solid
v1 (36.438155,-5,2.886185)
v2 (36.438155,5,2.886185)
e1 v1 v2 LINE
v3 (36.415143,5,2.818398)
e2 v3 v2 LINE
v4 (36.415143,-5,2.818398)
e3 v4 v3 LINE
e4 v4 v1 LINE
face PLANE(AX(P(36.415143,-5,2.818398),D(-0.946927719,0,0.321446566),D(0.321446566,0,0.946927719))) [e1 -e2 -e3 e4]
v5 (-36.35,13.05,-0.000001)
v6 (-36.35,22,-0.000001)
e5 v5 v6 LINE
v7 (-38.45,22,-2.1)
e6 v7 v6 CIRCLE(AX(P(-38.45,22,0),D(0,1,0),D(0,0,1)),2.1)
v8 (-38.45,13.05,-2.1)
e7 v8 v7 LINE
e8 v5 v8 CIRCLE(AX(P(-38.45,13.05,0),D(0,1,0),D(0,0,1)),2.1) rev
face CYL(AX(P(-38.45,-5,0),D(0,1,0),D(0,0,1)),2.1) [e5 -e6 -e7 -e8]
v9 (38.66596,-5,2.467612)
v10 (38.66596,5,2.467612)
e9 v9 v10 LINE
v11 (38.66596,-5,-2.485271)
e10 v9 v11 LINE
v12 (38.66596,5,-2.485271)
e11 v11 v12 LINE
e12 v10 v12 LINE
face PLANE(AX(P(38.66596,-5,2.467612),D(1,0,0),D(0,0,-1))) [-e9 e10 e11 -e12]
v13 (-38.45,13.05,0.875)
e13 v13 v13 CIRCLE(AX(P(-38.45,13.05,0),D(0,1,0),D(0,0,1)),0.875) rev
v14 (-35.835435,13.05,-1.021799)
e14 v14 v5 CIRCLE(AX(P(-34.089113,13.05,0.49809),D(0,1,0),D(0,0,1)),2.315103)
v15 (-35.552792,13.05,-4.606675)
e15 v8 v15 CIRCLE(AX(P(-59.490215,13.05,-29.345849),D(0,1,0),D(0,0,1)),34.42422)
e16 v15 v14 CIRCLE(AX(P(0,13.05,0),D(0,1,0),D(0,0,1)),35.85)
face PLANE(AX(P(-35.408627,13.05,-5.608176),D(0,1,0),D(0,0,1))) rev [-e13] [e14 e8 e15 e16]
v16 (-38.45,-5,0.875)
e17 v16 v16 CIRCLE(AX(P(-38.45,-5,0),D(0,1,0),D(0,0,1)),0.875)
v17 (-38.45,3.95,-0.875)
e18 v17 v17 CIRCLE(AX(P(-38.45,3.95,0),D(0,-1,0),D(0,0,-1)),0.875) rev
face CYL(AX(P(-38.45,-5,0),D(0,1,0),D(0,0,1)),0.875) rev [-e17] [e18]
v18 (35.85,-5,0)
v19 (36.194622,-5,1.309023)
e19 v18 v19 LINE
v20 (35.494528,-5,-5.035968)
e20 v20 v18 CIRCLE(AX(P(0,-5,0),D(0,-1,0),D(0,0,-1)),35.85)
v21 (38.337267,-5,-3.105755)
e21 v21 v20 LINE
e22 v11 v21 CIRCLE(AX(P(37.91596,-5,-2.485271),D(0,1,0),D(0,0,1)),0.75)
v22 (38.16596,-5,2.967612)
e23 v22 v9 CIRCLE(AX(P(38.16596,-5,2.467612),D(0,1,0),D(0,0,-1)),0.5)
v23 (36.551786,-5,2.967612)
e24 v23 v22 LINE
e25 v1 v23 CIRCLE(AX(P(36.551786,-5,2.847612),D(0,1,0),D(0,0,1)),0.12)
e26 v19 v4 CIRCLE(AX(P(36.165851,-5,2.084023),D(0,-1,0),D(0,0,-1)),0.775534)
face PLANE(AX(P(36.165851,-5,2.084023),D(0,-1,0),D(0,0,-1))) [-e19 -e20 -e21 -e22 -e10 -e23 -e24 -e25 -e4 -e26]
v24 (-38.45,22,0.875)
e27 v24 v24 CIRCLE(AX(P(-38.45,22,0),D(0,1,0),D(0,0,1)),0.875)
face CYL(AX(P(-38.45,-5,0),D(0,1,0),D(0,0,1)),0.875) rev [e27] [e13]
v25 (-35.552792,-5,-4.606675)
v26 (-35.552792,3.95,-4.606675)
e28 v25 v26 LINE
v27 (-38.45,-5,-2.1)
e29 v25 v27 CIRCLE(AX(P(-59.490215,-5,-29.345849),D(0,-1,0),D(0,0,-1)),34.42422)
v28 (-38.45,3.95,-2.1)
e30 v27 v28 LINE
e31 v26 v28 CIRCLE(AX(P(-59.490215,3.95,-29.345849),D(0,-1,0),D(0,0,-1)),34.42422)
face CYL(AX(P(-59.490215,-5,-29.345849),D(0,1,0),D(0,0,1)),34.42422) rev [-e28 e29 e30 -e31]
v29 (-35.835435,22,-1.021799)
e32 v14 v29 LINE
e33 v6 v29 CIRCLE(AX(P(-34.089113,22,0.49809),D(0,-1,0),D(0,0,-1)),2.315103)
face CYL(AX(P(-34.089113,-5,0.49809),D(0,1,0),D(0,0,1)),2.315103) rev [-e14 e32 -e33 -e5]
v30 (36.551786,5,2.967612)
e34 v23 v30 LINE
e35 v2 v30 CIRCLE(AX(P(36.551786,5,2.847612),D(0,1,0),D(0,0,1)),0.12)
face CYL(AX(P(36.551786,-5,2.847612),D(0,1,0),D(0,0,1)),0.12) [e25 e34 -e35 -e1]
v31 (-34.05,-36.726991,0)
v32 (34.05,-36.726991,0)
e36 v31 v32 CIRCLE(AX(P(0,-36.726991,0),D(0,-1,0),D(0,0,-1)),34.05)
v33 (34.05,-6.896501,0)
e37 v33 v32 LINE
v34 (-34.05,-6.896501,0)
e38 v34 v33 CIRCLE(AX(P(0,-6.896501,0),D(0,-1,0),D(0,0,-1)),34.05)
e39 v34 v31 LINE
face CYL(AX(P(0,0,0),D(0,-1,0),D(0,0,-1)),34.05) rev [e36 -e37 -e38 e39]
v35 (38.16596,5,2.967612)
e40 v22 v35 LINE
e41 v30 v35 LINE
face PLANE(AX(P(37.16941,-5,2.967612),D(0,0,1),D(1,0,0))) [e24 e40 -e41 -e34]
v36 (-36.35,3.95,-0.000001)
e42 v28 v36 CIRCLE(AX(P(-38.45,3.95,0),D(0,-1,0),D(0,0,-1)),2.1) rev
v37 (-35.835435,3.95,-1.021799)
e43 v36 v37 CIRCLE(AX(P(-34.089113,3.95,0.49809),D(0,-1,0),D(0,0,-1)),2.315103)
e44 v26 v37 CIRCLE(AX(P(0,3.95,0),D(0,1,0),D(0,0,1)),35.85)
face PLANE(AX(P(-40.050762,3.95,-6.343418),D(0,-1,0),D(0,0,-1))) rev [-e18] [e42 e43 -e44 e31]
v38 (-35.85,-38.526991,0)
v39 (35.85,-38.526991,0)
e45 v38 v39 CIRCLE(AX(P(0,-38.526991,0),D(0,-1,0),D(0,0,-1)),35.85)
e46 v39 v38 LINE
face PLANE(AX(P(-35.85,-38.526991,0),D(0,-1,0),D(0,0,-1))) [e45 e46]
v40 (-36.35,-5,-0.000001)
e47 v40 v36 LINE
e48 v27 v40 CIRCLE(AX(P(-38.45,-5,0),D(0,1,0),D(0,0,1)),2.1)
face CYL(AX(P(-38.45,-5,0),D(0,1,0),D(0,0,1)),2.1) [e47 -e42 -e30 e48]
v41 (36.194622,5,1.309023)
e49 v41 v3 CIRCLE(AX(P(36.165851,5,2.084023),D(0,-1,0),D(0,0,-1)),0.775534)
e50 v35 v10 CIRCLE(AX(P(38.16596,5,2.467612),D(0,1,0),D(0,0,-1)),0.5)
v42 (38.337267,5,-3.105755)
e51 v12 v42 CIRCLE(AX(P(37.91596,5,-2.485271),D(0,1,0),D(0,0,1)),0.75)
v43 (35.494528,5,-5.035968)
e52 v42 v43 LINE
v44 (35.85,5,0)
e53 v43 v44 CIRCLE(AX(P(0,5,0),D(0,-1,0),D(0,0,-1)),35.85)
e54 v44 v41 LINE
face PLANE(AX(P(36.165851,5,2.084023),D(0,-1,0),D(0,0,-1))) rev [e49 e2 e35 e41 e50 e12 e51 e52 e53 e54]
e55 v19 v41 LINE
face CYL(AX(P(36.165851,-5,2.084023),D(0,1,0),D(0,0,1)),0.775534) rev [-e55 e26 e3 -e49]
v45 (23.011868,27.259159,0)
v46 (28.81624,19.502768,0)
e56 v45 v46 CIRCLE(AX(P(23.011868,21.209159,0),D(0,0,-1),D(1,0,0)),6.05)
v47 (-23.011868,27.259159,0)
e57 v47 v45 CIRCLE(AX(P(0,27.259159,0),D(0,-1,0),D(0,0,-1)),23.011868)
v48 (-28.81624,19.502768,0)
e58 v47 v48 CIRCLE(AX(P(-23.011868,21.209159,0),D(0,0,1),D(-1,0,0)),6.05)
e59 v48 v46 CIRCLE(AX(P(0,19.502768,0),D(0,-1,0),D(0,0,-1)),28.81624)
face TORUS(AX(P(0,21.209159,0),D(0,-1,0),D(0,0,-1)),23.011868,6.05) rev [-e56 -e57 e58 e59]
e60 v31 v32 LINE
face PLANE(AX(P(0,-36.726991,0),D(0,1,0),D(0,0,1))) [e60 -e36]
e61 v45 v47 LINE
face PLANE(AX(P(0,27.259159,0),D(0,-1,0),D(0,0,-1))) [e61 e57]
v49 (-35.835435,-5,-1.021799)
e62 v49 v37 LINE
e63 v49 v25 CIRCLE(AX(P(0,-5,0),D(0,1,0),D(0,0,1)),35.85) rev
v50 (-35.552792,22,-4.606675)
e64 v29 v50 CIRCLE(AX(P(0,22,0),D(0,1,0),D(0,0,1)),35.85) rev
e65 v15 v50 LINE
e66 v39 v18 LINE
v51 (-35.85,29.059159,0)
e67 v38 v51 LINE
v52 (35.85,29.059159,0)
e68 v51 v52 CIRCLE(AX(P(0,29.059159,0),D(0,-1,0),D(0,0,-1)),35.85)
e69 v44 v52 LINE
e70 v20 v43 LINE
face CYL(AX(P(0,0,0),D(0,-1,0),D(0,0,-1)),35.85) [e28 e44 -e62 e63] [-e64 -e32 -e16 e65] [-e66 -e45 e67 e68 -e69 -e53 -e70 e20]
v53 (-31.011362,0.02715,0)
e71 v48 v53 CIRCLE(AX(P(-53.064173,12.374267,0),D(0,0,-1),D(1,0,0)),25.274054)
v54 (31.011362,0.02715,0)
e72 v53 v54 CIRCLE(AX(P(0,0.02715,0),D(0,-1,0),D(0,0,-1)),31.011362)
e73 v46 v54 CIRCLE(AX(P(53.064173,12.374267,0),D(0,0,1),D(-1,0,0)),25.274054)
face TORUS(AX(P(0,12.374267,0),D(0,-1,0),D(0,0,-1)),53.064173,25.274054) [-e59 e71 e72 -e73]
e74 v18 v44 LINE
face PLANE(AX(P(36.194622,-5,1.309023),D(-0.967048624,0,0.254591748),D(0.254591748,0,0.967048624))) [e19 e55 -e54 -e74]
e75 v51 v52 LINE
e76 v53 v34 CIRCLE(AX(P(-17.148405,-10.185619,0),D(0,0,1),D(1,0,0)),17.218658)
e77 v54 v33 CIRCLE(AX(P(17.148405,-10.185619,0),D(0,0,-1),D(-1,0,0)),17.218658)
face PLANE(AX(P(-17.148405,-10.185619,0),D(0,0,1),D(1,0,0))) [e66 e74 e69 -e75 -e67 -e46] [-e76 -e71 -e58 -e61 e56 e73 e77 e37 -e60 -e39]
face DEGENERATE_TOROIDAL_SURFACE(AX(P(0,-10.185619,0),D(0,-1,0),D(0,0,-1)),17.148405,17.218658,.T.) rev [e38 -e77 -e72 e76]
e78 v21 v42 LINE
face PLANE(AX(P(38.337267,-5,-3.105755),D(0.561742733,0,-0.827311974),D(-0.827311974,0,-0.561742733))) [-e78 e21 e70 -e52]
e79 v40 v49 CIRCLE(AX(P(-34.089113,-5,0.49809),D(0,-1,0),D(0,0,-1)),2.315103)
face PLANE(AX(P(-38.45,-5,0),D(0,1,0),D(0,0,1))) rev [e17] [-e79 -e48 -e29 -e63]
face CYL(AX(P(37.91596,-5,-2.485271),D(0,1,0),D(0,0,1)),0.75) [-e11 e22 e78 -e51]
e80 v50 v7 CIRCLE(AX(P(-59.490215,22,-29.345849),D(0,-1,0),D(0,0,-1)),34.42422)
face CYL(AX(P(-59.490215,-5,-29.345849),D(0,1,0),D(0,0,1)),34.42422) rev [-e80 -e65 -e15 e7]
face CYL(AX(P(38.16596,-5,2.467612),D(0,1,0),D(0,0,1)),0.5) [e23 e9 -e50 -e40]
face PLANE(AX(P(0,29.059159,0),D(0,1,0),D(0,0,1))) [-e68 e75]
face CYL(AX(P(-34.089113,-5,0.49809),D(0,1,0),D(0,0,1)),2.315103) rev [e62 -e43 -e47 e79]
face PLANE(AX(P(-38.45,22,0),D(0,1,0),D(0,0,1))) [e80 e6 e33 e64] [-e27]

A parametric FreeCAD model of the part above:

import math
import FreeCAD as App
import Part
import Sketcher

doc = App.newDocument("Part")
body = doc.addObject("PartDesign::Body", "Body")

# Sketch on XY plane
sketch1 = doc.addObject("Sketcher::SketchObject", "Sketch")
body.addObject(sketch1)
sketch1.AttachmentSupport = (doc.XY_Plane, [""])
sketch1.MapMode = "FlatFace"
sketch1.addGeometry(Part.LineSegment(App.Vector(0, 27.3, 0), App.Vector(23, 27.3, 0)), False)
sketch1.addGeometry(Part.ArcOfCircle(Part.Circle(App.Vector(23, 21.2, 0), App.Vector(0, 0, 1), 6.1), math.radians(-16), math.radians(90)), False)
sketch1.addGeometry(Part.ArcOfCircle(Part.Circle(App.Vector(53.1, 12.4, 0), App.Vector(0, 0, 1), 25.3), math.radians(164), math.radians(209)), False)
sketch1.addGeometry(Part.ArcOfCircle(Part.Circle(App.Vector(17.1, -10.2, 0), App.Vector(0, 0, 1), 17.2), math.radians(11), math.radians(36)), False)
sketch1.addGeometry(Part.LineSegment(App.Vector(34, -6.9, 0), App.Vector(34, -36.7, 0)), False)
sketch1.addGeometry(Part.LineSegment(App.Vector(34, -36.7, 0), App.Vector(0, -36.7, 0)), False)
sketch1.addGeometry(Part.LineSegment(App.Vector(0, -36.7, 0), App.Vector(0, -38.5, 0)), False)
sketch1.addGeometry(Part.LineSegment(App.Vector(0, -38.5, 0), App.Vector(35.9, -38.5, 0)), False)
sketch1.addGeometry(Part.LineSegment(App.Vector(35.9, -38.5, 0), App.Vector(35.9, 29.1, 0)), False)
sketch1.addGeometry(Part.LineSegment(App.Vector(35.9, 29.1, 0), App.Vector(0, 29.1, 0)), False)
sketch1.addGeometry(Part.LineSegment(App.Vector(0, 29.1, 0), App.Vector(0, 27.3, 0)), False)
sketch1.addConstraint(Sketcher.Constraint("Tangent", 0, 2, 1, 2))
sketch1.addConstraint(Sketcher.Constraint("Tangent", 1, 1, 2, 1))
sketch1.addConstraint(Sketcher.Constraint("Coincident", 2, 2, 3, 2))
sketch1.addConstraint(Sketcher.Constraint("Coincident", 3, 1, 4, 1))
sketch1.addConstraint(Sketcher.Constraint("Coincident", 4, 2, 5, 1))
sketch1.addConstraint(Sketcher.Constraint("Coincident", 5, 2, 6, 1))
sketch1.addConstraint(Sketcher.Constraint("Coincident", 6, 2, 7, 1))
sketch1.addConstraint(Sketcher.Constraint("Coincident", 7, 2, 8, 1))
sketch1.addConstraint(Sketcher.Constraint("Coincident", 8, 2, 9, 1))
sketch1.addConstraint(Sketcher.Constraint("Coincident", 9, 2, 10, 1))
sketch1.addConstraint(Sketcher.Constraint("Coincident", 10, 2, 0, 1))
sketch1.addConstraint(Sketcher.Constraint("Horizontal", 0))
sketch1.addConstraint(Sketcher.Constraint("Vertical", 4))
sketch1.addConstraint(Sketcher.Constraint("Horizontal", 5))
sketch1.addConstraint(Sketcher.Constraint("Vertical", 6))
sketch1.addConstraint(Sketcher.Constraint("Horizontal", 7))
sketch1.addConstraint(Sketcher.Constraint("Vertical", 8))
sketch1.addConstraint(Sketcher.Constraint("Horizontal", 9))
sketch1.addConstraint(Sketcher.Constraint("Vertical", 10))
sketch1.addConstraint(Sketcher.Constraint("PointOnObject", 5, 2, -2))
sketch1.addConstraint(Sketcher.Constraint("PointOnObject", 9, 2, -2))
sketch1.addConstraint(Sketcher.Constraint("Equal", 6, 10))
sketch1.addConstraint(Sketcher.Constraint("Radius", 1, 6.05))
sketch1.addConstraint(Sketcher.Constraint("DistanceY", 6, 2, 6, 1, 1.8))
sketch1.addConstraint(Sketcher.Constraint("DistanceX", 5, 2, 5, 1, 34.05))
sketch1.addConstraint(Sketcher.Constraint("DistanceX", 7, 1, 7, 2, 35.85))
sketch1.addConstraint(Sketcher.Constraint("Radius", 3, 17.218658))
sketch1.addConstraint(Sketcher.Constraint("Radius", 2, 25.274054))
sketch1.addConstraint(Sketcher.Constraint("DistanceX", 0, 1, 0, 2, 23.011868))
sketch1.addConstraint(Sketcher.Constraint("DistanceY", 4, 2, 4, 1, 29.83049))
sketch1.addConstraint(Sketcher.Constraint("DistanceY", 8, 1, 8, 2, 67.58615))
sketch1.addConstraint(Sketcher.Constraint("DistanceY", 3, 1, -1, 1, 6.896501))
sketch1.addConstraint(Sketcher.Constraint("DistanceY", 2, 3, 1, 1, 7.128501))
sketch1.addConstraint(Sketcher.Constraint("DistanceY", 3, 3, -1, 1, 10.185619))
revolution = doc.addObject("PartDesign::Revolution", "Revolution")
body.addObject(revolution)
revolution.Profile = sketch1
revolution.ReferenceAxis = (sketch1, ["V_Axis"])
revolution.Angle = 180

# Sketch on XZ plane
sketch2 = doc.addObject("Sketcher::SketchObject", "Sketch001")
body.addObject(sketch2)
sketch2.AttachmentSupport = (doc.XZ_Plane, [""])
sketch2.MapMode = "FlatFace"
sketch2.addGeometry(Part.LineSegment(App.Vector(-35.8, -1, 0), App.Vector(-35.7, -1.7, 0)), False)
sketch2.addGeometry(Part.LineSegment(App.Vector(-35.7, -1.7, 0), App.Vector(-35.6, -4.6, 0)), False)
sketch2.addGeometry(Part.ArcOfCircle(Part.Circle(App.Vector(-59.5, -29.3, 0), App.Vector(0, 0, 1), 34.4), math.radians(45.94), math.radians(52.32)), False)
sketch2.addGeometry(Part.ArcOfCircle(Part.Circle(App.Vector(-38.5, 0, 0), App.Vector(0, 0, 1), 2.1), math.radians(0), math.radians(270)), False)
sketch2.addGeometry(Part.ArcOfCircle(Part.Circle(App.Vector(-34.1, 0.5, 0), App.Vector(0, 0, 1), 2.3), math.radians(-168), math.radians(-139)), False)
sketch2.addGeometry(Part.Circle(App.Vector(-38.5, 0, 0), App.Vector(0, 0, 1), 0.9), False)
sketch2.addConstraint(Sketcher.Constraint("Coincident", 0, 2, 1, 1))
sketch2.addConstraint(Sketcher.Constraint("Coincident", 1, 2, 2, 1))
sketch2.addConstraint(Sketcher.Constraint("Coincident", 2, 2, 3, 2))
sketch2.addConstraint(Sketcher.Constraint("Coincident", 3, 1, 4, 1))
sketch2.addConstraint(Sketcher.Constraint("Coincident", 4, 2, 0, 1))
sketch2.addConstraint(Sketcher.Constraint("Coincident", 5, 3, 3, 3))
sketch2.addConstraint(Sketcher.Constraint("PointOnObject", 3, 3, -1))
sketch2.addConstraint(Sketcher.Constraint("PointOnObject", 3, 1, -1))
sketch2.addConstraint(Sketcher.Constraint("Vertical", 5, 3, 2, 2))
sketch2.addConstraint(Sketcher.Constraint("Radius", 3, 2.1))
sketch2.addConstraint(Sketcher.Constraint("Diameter", 5, 1.75))
sketch2.addConstraint(Sketcher.Constraint("DistanceX", 3, 3, -1, 1, 38.45))
sketch2.addConstraint(Sketcher.Constraint("Radius", 2, 34.42422))
sketch2.addConstraint(Sketcher.Constraint("Radius", 4, 2.315103))
sketch2.addConstraint(Sketcher.Constraint("DistanceY", 4, 2, -1, 1, 1.021799))
sketch2.addConstraint(Sketcher.Constraint("DistanceX", 2, 3, 4, 3, 25.401102))
sketch2.addConstraint(Sketcher.Constraint("DistanceY", 2, 3, -1, 1, 29.345849))
sketch2.addConstraint(Sketcher.Constraint("DistanceX", 0, 2, 4, 3, 1.57611))
sketch2.addConstraint(Sketcher.Constraint("DistanceX", 0, 2, 1, 2, 0.112431))
sketch2.addConstraint(Sketcher.Constraint("Distance", 0, 0.722782))
pad1 = doc.addObject("PartDesign::Pad", "Pad")
body.addObject(pad1)
pad1.Profile = sketch2
pad1.Type = "TwoLengths"
pad1.Length = 22
pad1.Length2 = 5
pad1.Reversed = True

# Sketch on XZ plane
sketch3 = doc.addObject("Sketcher::SketchObject", "Sketch002")
body.addObject(sketch3)
sketch3.AttachmentSupport = (doc.XZ_Plane, [""])
sketch3.MapMode = "FlatFace"
sketch3.addGeometry(Part.LineSegment(App.Vector(35.85, 0, 0), App.Vector(36.19, 1.31, 0)), False)
sketch3.addGeometry(Part.ArcOfCircle(Part.Circle(App.Vector(36.17, 2.08, 0), App.Vector(0, 0, 1), 0.78), math.radians(-88), math.radians(71)), False)
sketch3.addGeometry(Part.LineSegment(App.Vector(36.42, 2.82, 0), App.Vector(36.44, 2.89, 0)), False)
sketch3.addGeometry(Part.ArcOfCircle(Part.Circle(App.Vector(36.55, 2.85, 0), App.Vector(0, 0, 1), 0.12), math.radians(90), math.radians(161)), False)
sketch3.addGeometry(Part.LineSegment(App.Vector(36.55, 2.97, 0), App.Vector(38.17, 2.97, 0)), False)
sketch3.addGeometry(Part.ArcOfCircle(Part.Circle(App.Vector(38.17, 2.47, 0), App.Vector(0, 0, 1), 0.5), math.radians(0), math.radians(90)), False)
sketch3.addGeometry(Part.LineSegment(App.Vector(38.67, 2.47, 0), App.Vector(38.67, -2.49, 0)), False)
sketch3.addGeometry(Part.ArcOfCircle(Part.Circle(App.Vector(37.92, -2.49, 0), App.Vector(0, 0, 1), 0.75), math.radians(-56), math.radians(0)), False)
sketch3.addGeometry(Part.LineSegment(App.Vector(38.34, -3.11, 0), App.Vector(35.49, -5.04, 0)), False)
sketch3.addGeometry(Part.ArcOfCircle(Part.Circle(App.Vector(0, 0, 0), App.Vector(0, 0, 1), 35.85), math.radians(-8.08), math.radians(0)), False)
sketch3.addConstraint(Sketcher.Constraint("Coincident", 0, 2, 1, 1))
sketch3.addConstraint(Sketcher.Constraint("Coincident", 1, 2, 2, 1))
sketch3.addConstraint(Sketcher.Constraint("Tangent", 2, 2, 3, 2))
sketch3.addConstraint(Sketcher.Constraint("Tangent", 3, 1, 4, 1))
sketch3.addConstraint(Sketcher.Constraint("Tangent", 4, 2, 5, 2))
sketch3.addConstraint(Sketcher.Constraint("Tangent", 5, 1, 6, 1))
sketch3.addConstraint(Sketcher.Constraint("Tangent", 6, 2, 7, 2))
sketch3.addConstraint(Sketcher.Constraint("Tangent", 7, 1, 8, 1))
sketch3.addConstraint(Sketcher.Constraint("Coincident", 8, 2, 9, 1))
sketch3.addConstraint(Sketcher.Constraint("Coincident", 9, 2, 0, 1))
sketch3.addConstraint(Sketcher.Constraint("Horizontal", 4))
sketch3.addConstraint(Sketcher.Constraint("Vertical", 6))
sketch3.addConstraint(Sketcher.Constraint("Coincident", 9, 3, -1, 1))
sketch3.addConstraint(Sketcher.Constraint("PointOnObject", 9, 2, -1))
sketch3.addConstraint(Sketcher.Constraint("Radius", 5, 0.5))
sketch3.addConstraint(Sketcher.Constraint("Radius", 3, 0.12))
sketch3.addConstraint(Sketcher.Constraint("Radius", 7, 0.75))
sketch3.addConstraint(Sketcher.Constraint("Radius", 9, 35.85))
sketch3.addConstraint(Sketcher.Constraint("Radius", 1, 0.775534))
sketch3.addConstraint(Sketcher.Constraint("DistanceY", 0, 2, 1, 3, 0.775))
sketch3.addConstraint(Sketcher.Constraint("DistanceX", 4, 1, 4, 2, 1.614174))
sketch3.addConstraint(Sketcher.Constraint("DistanceY", 6, 2, 6, 1, 4.952883))
sketch3.addConstraint(Sketcher.Constraint("DistanceX", -1, 1, 1, 3, 36.165851))
sketch3.addConstraint(Sketcher.Constraint("DistanceY", -1, 1, 3, 3, 2.847612))
sketch3.addConstraint(Sketcher.Constraint("DistanceX", -1, 1, 5, 3, 38.16596))
sketch3.addConstraint(Sketcher.Constraint("DistanceX", -1, 1, 8, 2, 35.494528))
sketch3.addConstraint(Sketcher.Constraint("DistanceY", 1, 3, 3, 3, 0.763589))
sketch3.addConstraint(Sketcher.Constraint("DistanceX", 0, 2, 1, 2, 0.220521))
pad2 = doc.addObject("PartDesign::Pad", "Pad001")
body.addObject(pad2)
pad2.Profile = sketch3
pad2.Type = "TwoLengths"
pad2.Length = 5
pad2.Length2 = 5
pad2.Reversed = True

# Sketch on XY plane
sketch4 = doc.addObject("Sketcher::SketchObject", "Sketch003")
body.addObject(sketch4)
sketch4.AttachmentSupport = (doc.XY_Plane, [""])
sketch4.MapMode = "FlatFace"
sketch4.addGeometry(Part.LineSegment(App.Vector(-40.5, 13.1, 0), App.Vector(-40.5, 4, 0)), False)
sketch4.addGeometry(Part.LineSegment(App.Vector(-40.5, 4, 0), App.Vector(-35.9, 4, 0)), False)
sketch4.addGeometry(Part.LineSegment(App.Vector(-35.9, 4, 0), App.Vector(-35.9, 13.1, 0)), False)
sketch4.addGeometry(Part.LineSegment(App.Vector(-35.9, 13.1, 0), App.Vector(-40.5, 13.1, 0)), False)
sketch4.addConstraint(Sketcher.Constraint("Coincident", 0, 2, 1, 1))
sketch4.addConstraint(Sketcher.Constraint("Coincident", 1, 2, 2, 1))
sketch4.addConstraint(Sketcher.Constraint("Coincident", 2, 2, 3, 1))
sketch4.addConstraint(Sketcher.Constraint("Coincident", 3, 2, 0, 1))
sketch4.addConstraint(Sketcher.Constraint("Vertical", 0))
sketch4.addConstraint(Sketcher.Constraint("Horizontal", 1))
sketch4.addConstraint(Sketcher.Constraint("Vertical", 2))
sketch4.addConstraint(Sketcher.Constraint("Horizontal", 3))
sketch4.addConstraint(Sketcher.Constraint("DistanceX", 1, 1, 1, 2, 4.7))
sketch4.addConstraint(Sketcher.Constraint("DistanceY", 0, 2, 0, 1, 9.1))
sketch4.addConstraint(Sketcher.Constraint("DistanceX", 0, 2, -1, 1, 40.55))
sketch4.addConstraint(Sketcher.Constraint("DistanceY", -1, 1, 0, 2, 3.95))
groove = doc.addObject("PartDesign::Groove", "Groove")
body.addObject(groove)
groove.Profile = sketch4
groove.ReferenceAxis = (sketch4, ["V_Axis"])
groove.Angle = 9

# Sketch on XY plane
sketch5 = doc.addObject("Sketcher::SketchObject", "Sketch004")
body.addObject(sketch5)
sketch5.AttachmentSupport = (doc.XY_Plane, [""])
sketch5.MapMode = "FlatFace"
sketch5.addGeometry(Part.LineSegment(App.Vector(-40.5, 13.1, 0), App.Vector(-40.5, 4, 0)), False)
sketch5.addGeometry(Part.LineSegment(App.Vector(-40.5, 4, 0), App.Vector(-35.9, 4, 0)), False)
sketch5.addGeometry(Part.LineSegment(App.Vector(-35.9, 4, 0), App.Vector(-35.9, 13.1, 0)), False)
sketch5.addGeometry(Part.LineSegment(App.Vector(-35.9, 13.1, 0), App.Vector(-40.5, 13.1, 0)), False)
sketch5.addConstraint(Sketcher.Constraint("Coincident", 0, 2, 1, 1))
sketch5.addConstraint(Sketcher.Constraint("Coincident", 1, 2, 2, 1))
sketch5.addConstraint(Sketcher.Constraint("Coincident", 2, 2, 3, 1))
sketch5.addConstraint(Sketcher.Constraint("Coincident", 3, 2, 0, 1))
sketch5.addConstraint(Sketcher.Constraint("Vertical", 0))
sketch5.addConstraint(Sketcher.Constraint("Horizontal", 1))
sketch5.addConstraint(Sketcher.Constraint("Vertical", 2))
sketch5.addConstraint(Sketcher.Constraint("Horizontal", 3))
sketch5.addConstraint(Sketcher.Constraint("DistanceX", 1, 1, 1, 2, 4.7))
sketch5.addConstraint(Sketcher.Constraint("DistanceY", 0, 2, 0, 1, 9.1))
sketch5.addConstraint(Sketcher.Constraint("DistanceX", 0, 2, -1, 1, 40.55))
sketch5.addConstraint(Sketcher.Constraint("DistanceY", -1, 1, 0, 2, 3.95))
groove2 = doc.addObject("PartDesign::Groove", "Groove001")
body.addObject(groove2)
groove2.Profile = sketch5
groove2.ReferenceAxis = (sketch5, ["V_Axis"])
groove2.Angle = 9
groove2.Reversed = True

doc.recompute()
